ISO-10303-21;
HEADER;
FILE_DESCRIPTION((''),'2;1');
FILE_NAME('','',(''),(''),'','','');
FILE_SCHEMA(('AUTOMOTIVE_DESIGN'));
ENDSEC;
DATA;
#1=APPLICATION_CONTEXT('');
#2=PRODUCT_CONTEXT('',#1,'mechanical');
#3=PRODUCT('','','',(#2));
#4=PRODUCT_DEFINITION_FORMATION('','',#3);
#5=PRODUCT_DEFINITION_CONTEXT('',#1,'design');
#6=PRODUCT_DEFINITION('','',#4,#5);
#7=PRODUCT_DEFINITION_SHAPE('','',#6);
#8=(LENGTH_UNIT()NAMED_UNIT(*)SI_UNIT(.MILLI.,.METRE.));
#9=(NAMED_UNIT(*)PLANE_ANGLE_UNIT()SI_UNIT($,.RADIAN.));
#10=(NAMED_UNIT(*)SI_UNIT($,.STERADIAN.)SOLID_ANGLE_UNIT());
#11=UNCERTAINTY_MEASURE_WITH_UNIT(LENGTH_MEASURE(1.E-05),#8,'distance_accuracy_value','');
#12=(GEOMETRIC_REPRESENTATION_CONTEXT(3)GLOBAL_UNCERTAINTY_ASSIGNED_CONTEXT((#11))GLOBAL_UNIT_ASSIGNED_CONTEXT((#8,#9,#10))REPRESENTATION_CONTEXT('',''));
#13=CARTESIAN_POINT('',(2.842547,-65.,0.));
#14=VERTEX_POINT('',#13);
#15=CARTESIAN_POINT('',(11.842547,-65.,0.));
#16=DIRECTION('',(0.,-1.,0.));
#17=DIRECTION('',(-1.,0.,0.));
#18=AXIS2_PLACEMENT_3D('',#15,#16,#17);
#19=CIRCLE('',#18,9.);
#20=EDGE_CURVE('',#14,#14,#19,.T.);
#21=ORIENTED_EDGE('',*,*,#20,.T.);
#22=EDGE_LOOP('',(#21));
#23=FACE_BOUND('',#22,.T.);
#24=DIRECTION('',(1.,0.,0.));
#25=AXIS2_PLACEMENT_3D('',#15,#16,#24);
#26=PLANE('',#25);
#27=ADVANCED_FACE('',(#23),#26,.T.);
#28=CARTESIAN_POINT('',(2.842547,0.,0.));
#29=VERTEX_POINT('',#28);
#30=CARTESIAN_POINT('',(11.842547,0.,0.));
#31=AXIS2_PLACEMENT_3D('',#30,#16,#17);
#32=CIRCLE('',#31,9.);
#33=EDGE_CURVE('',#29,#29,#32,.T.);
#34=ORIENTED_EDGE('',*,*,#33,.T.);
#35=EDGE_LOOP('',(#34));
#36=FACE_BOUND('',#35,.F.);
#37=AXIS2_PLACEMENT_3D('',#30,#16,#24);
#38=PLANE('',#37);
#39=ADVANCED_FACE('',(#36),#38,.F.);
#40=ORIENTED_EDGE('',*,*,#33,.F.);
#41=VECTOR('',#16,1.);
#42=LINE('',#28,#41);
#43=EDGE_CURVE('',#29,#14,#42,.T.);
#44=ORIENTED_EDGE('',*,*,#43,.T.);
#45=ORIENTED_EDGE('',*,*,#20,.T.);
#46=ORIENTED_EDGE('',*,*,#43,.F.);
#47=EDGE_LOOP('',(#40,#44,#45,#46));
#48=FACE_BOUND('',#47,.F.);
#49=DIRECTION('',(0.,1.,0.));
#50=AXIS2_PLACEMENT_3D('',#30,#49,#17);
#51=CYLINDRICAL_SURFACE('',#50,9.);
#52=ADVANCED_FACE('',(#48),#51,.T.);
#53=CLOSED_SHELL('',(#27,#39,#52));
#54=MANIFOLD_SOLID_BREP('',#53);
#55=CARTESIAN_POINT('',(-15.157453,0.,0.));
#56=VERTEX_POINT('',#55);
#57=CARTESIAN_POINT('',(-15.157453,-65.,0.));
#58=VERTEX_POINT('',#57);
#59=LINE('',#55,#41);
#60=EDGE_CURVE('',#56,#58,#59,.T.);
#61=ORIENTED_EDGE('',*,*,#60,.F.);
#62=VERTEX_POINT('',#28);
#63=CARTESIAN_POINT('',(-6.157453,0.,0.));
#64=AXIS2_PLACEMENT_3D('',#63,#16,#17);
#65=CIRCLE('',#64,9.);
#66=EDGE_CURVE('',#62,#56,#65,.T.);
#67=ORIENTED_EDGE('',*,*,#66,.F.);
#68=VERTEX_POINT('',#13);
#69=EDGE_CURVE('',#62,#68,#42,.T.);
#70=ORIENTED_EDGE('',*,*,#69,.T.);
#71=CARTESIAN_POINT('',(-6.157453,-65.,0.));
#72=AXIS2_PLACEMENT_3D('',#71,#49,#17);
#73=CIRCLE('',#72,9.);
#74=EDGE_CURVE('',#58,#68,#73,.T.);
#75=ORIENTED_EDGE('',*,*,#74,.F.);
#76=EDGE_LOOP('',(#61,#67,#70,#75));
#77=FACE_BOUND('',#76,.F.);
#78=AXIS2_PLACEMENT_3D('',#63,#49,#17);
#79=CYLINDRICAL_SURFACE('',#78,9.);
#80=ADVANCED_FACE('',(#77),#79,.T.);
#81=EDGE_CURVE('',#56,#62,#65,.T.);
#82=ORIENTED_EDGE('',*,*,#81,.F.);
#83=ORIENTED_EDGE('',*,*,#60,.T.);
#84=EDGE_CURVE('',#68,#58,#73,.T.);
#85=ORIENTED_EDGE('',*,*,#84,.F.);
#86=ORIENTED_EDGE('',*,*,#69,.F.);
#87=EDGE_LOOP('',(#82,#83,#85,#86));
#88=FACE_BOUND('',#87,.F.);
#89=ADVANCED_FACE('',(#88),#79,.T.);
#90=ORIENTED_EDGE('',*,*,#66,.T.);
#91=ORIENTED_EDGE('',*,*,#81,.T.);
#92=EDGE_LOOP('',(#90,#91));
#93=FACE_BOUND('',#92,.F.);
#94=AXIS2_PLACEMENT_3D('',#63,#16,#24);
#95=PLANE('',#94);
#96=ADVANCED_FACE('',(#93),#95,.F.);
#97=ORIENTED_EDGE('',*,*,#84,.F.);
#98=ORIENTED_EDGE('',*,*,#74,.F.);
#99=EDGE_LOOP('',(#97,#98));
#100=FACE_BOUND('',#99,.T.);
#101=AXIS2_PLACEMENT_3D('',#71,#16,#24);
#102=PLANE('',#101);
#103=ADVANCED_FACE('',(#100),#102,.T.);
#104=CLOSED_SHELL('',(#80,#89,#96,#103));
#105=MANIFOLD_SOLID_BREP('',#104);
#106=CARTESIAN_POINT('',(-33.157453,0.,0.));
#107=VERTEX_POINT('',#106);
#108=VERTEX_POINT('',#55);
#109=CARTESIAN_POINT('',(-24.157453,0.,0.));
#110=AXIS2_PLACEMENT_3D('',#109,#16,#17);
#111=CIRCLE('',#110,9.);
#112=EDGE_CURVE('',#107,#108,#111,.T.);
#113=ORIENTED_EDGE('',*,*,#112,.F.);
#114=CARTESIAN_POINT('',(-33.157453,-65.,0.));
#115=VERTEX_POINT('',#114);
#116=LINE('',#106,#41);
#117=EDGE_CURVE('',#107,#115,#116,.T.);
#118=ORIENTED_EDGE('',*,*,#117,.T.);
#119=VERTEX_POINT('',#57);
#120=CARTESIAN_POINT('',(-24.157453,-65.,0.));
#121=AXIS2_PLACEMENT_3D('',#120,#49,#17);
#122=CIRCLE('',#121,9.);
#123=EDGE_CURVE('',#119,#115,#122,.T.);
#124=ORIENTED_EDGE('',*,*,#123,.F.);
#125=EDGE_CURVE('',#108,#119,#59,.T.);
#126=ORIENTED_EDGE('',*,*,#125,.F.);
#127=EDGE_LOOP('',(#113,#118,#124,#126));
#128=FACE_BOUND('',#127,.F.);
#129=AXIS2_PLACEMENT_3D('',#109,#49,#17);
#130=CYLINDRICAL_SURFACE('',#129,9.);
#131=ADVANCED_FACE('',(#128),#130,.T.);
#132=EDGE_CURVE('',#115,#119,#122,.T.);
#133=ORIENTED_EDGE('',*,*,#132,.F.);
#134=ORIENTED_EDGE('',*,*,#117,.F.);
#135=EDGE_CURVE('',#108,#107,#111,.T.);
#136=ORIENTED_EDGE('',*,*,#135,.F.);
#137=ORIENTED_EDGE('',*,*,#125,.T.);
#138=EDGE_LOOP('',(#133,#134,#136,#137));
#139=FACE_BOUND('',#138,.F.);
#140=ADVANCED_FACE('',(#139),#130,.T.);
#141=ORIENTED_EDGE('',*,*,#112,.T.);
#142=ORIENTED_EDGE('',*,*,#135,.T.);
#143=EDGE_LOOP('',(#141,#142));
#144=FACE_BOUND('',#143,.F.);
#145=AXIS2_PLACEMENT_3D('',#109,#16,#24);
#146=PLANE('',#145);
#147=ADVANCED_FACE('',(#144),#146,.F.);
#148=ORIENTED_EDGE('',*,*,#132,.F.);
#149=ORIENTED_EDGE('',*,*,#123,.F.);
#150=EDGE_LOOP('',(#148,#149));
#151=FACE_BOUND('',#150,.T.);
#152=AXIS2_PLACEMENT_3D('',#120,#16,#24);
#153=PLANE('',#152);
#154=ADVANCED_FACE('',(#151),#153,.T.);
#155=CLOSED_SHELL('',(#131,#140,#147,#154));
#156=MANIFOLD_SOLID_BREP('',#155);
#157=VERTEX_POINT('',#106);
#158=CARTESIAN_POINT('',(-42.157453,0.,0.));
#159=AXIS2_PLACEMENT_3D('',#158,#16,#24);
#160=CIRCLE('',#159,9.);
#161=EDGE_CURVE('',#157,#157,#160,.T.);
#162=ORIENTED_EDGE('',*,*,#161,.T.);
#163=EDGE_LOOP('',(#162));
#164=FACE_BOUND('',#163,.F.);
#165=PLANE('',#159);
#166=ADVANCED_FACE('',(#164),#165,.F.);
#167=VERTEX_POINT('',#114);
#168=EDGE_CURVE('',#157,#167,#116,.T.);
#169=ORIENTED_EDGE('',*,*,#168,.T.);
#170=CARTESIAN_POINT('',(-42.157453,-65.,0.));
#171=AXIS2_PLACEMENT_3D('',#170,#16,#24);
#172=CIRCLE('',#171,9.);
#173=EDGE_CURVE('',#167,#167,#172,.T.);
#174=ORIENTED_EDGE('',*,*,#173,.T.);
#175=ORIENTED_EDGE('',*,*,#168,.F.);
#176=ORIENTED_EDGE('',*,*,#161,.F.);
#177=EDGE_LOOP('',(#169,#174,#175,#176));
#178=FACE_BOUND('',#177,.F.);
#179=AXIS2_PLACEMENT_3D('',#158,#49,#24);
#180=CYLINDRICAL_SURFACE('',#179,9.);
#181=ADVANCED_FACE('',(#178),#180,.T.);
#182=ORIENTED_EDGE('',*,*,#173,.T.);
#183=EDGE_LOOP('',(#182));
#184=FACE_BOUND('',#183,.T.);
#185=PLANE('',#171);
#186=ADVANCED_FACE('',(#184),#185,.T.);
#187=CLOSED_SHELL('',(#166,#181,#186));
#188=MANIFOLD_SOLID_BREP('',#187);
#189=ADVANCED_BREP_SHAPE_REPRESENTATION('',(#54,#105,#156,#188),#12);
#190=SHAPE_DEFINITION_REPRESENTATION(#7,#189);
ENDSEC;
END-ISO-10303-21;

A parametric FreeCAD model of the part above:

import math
import FreeCAD as App
import Part
import Sketcher

V = App.Vector
Q = App.Units.Quantity

doc = App.newDocument("Part")
body = doc.addObject("PartDesign::Body", "Body")
body.AllowCompound = True

# Sketch on XZ plane
sketch1 = body.newObject("Sketcher::SketchObject", "Sketch")
sketch1.AttachmentSupport = (doc.getObject("XZ_Plane"), [""])
sketch1.MapMode = "FlatFace"
sketch1.addGeometry([
    Part.Circle(V(-42, 0, 0), V(0, 0, 1), 9),  # 0
    Part.ArcOfCircle(Part.Circle(V(-24, 0, 0), V(0, 0, 1), 9), math.radians(180), math.radians(360)),  # 1
    Part.ArcOfCircle(Part.Circle(V(-24, 0, 0), V(0, 0, 1), 9), math.radians(0), math.radians(180)),  # 2
    Part.ArcOfCircle(Part.Circle(V(-6, 0, 0), V(0, 0, 1), 9), math.radians(180), math.radians(360)),  # 3
    Part.ArcOfCircle(Part.Circle(V(-6, 0, 0), V(0, 0, 1), 9), math.radians(0), math.radians(180)),  # 4
    Part.Circle(V(12, 0, 0), V(0, 0, 1), 9),  # 5
], False)
sketch1.addConstraint([
    Sketcher.Constraint("Tangent", 1, 1, 2, 2),
    Sketcher.Constraint("Coincident", 2, 1, 1, 2),
    Sketcher.Constraint("Tangent", 3, 1, 4, 2),
    Sketcher.Constraint("Coincident", 4, 1, 3, 2),
    Sketcher.Constraint("Coincident", 3, 1, 2, 1),
    Sketcher.Constraint("Equal", 0, 1),
    Sketcher.Constraint("Equal", 2, 3),
    Sketcher.Constraint("Equal", 4, 5),
    Sketcher.Constraint("PointOnObject", 0, 3, -1),
    Sketcher.Constraint("PointOnObject", 1, 3, -1),
    Sketcher.Constraint("PointOnObject", 3, 3, -1),
    Sketcher.Constraint("PointOnObject", 5, 3, -1),
    Sketcher.Constraint("PointOnObject", 1, 1, -1),
    Sketcher.Constraint("PointOnObject", 2, 1, -1),
    Sketcher.Constraint("PointOnObject", 4, 1, -1),
    Sketcher.Constraint("Diameter", 0, Q("18 mm")),
    Sketcher.Constraint("DistanceX", 0, 3, 1, 3, Q("18 mm")),
    Sketcher.Constraint("DistanceX", 3, 3, 5, 3, Q("18 mm")),
    Sketcher.Constraint("DistanceX", 0, 3, -1, 1, Q("42.157453 mm")),
])
pad1 = body.newObject("PartDesign::Pad", "Pad")
pad1.Profile = sketch1
pad1.Length = 65

doc.recompute()
